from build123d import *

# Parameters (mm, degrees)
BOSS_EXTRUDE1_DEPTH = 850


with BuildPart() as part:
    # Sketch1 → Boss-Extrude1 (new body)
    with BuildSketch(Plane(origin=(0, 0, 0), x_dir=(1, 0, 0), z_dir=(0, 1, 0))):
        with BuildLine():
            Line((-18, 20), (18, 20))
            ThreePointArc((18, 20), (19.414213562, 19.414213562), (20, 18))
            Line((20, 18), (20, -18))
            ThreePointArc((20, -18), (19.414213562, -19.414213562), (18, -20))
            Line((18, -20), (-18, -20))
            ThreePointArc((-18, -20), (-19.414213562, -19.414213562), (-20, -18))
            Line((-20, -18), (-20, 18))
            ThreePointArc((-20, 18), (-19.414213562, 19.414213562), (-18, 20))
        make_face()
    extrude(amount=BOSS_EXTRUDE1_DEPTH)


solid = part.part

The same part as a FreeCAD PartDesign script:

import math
import FreeCAD as App
import Part
import Sketcher
Q = App.Units.Quantity

doc = App.newDocument("Part")
body = doc.addObject("PartDesign::Body", "Body")

# Sketch on XZ plane
sketch1 = body.newObject("Sketcher::SketchObject", "Sketch")
sketch1.AttachmentSupport = (doc.getObject("XZ_Plane"), [""])
sketch1.MapMode = "FlatFace"
sketch1.addGeometry(Part.LineSegment(App.Vector(18, -20, 0), App.Vector(-18, -20, 0)), False)
sketch1.addGeometry(Part.ArcOfCircle(Part.Circle(App.Vector(-18, -18, 0), App.Vector(0, 0, 1), 2), math.radians(-180), math.radians(-90)), False)
sketch1.addGeometry(Part.LineSegment(App.Vector(-20, -18, 0), App.Vector(-20, 18, 0)), False)
sketch1.addGeometry(Part.ArcOfCircle(Part.Circle(App.Vector(-18, 18, 0), App.Vector(0, 0, 1), 2), math.radians(90), math.radians(180)), False)
sketch1.addGeometry(Part.LineSegment(App.Vector(-18, 20, 0), App.Vector(18, 20, 0)), False)
sketch1.addGeometry(Part.ArcOfCircle(Part.Circle(App.Vector(18, 18, 0), App.Vector(0, 0, 1), 2), math.radians(0), math.radians(90)), False)
sketch1.addGeometry(Part.LineSegment(App.Vector(20, 18, 0), App.Vector(20, -18, 0)), False)
sketch1.addGeometry(Part.ArcOfCircle(Part.Circle(App.Vector(18, -18, 0), App.Vector(0, 0, 1), 2), math.radians(-90), math.radians(0)), False)
sketch1.addConstraint(Sketcher.Constraint("Tangent", 0, 2, 1, 2))
sketch1.addConstraint(Sketcher.Constraint("Tangent", 1, 1, 2, 1))
sketch1.addConstraint(Sketcher.Constraint("Tangent", 2, 2, 3, 2))
sketch1.addConstraint(Sketcher.Constraint("Tangent", 3, 1, 4, 1))
sketch1.addConstraint(Sketcher.Constraint("Tangent", 4, 2, 5, 2))
sketch1.addConstraint(Sketcher.Constraint("Tangent", 5, 1, 6, 1))
sketch1.addConstraint(Sketcher.Constraint("Tangent", 6, 2, 7, 2))
sketch1.addConstraint(Sketcher.Constraint("Tangent", 7, 1, 0, 1))
sketch1.addConstraint(Sketcher.Constraint("Horizontal", 0))
sketch1.addConstraint(Sketcher.Constraint("Vertical", 2))
sketch1.addConstraint(Sketcher.Constraint("Horizontal", 4))
sketch1.addConstraint(Sketcher.Constraint("Vertical", 6))
sketch1.addConstraint(Sketcher.Constraint("Equal", 1, 3))
sketch1.addConstraint(Sketcher.Constraint("Equal", 3, 5))
sketch1.addConstraint(Sketcher.Constraint("Equal", 5, 7))
sketch1.addConstraint(Sketcher.Constraint("Symmetric", 1, 3, 5, 3, -1, 1))
sketch1.addConstraint(Sketcher.Constraint("Equal", 4, 2))
sketch1.addConstraint(Sketcher.Constraint("Radius", 1, Q("2 mm")))
sketch1.addConstraint(Sketcher.Constraint("DistanceX", 0, 2, 0, 1, Q("36 mm")))
pad1 = body.newObject("PartDesign::Pad", "Pad")
pad1.Profile = sketch1
pad1.Length = 850
pad1.Reversed = True

doc.recompute()
